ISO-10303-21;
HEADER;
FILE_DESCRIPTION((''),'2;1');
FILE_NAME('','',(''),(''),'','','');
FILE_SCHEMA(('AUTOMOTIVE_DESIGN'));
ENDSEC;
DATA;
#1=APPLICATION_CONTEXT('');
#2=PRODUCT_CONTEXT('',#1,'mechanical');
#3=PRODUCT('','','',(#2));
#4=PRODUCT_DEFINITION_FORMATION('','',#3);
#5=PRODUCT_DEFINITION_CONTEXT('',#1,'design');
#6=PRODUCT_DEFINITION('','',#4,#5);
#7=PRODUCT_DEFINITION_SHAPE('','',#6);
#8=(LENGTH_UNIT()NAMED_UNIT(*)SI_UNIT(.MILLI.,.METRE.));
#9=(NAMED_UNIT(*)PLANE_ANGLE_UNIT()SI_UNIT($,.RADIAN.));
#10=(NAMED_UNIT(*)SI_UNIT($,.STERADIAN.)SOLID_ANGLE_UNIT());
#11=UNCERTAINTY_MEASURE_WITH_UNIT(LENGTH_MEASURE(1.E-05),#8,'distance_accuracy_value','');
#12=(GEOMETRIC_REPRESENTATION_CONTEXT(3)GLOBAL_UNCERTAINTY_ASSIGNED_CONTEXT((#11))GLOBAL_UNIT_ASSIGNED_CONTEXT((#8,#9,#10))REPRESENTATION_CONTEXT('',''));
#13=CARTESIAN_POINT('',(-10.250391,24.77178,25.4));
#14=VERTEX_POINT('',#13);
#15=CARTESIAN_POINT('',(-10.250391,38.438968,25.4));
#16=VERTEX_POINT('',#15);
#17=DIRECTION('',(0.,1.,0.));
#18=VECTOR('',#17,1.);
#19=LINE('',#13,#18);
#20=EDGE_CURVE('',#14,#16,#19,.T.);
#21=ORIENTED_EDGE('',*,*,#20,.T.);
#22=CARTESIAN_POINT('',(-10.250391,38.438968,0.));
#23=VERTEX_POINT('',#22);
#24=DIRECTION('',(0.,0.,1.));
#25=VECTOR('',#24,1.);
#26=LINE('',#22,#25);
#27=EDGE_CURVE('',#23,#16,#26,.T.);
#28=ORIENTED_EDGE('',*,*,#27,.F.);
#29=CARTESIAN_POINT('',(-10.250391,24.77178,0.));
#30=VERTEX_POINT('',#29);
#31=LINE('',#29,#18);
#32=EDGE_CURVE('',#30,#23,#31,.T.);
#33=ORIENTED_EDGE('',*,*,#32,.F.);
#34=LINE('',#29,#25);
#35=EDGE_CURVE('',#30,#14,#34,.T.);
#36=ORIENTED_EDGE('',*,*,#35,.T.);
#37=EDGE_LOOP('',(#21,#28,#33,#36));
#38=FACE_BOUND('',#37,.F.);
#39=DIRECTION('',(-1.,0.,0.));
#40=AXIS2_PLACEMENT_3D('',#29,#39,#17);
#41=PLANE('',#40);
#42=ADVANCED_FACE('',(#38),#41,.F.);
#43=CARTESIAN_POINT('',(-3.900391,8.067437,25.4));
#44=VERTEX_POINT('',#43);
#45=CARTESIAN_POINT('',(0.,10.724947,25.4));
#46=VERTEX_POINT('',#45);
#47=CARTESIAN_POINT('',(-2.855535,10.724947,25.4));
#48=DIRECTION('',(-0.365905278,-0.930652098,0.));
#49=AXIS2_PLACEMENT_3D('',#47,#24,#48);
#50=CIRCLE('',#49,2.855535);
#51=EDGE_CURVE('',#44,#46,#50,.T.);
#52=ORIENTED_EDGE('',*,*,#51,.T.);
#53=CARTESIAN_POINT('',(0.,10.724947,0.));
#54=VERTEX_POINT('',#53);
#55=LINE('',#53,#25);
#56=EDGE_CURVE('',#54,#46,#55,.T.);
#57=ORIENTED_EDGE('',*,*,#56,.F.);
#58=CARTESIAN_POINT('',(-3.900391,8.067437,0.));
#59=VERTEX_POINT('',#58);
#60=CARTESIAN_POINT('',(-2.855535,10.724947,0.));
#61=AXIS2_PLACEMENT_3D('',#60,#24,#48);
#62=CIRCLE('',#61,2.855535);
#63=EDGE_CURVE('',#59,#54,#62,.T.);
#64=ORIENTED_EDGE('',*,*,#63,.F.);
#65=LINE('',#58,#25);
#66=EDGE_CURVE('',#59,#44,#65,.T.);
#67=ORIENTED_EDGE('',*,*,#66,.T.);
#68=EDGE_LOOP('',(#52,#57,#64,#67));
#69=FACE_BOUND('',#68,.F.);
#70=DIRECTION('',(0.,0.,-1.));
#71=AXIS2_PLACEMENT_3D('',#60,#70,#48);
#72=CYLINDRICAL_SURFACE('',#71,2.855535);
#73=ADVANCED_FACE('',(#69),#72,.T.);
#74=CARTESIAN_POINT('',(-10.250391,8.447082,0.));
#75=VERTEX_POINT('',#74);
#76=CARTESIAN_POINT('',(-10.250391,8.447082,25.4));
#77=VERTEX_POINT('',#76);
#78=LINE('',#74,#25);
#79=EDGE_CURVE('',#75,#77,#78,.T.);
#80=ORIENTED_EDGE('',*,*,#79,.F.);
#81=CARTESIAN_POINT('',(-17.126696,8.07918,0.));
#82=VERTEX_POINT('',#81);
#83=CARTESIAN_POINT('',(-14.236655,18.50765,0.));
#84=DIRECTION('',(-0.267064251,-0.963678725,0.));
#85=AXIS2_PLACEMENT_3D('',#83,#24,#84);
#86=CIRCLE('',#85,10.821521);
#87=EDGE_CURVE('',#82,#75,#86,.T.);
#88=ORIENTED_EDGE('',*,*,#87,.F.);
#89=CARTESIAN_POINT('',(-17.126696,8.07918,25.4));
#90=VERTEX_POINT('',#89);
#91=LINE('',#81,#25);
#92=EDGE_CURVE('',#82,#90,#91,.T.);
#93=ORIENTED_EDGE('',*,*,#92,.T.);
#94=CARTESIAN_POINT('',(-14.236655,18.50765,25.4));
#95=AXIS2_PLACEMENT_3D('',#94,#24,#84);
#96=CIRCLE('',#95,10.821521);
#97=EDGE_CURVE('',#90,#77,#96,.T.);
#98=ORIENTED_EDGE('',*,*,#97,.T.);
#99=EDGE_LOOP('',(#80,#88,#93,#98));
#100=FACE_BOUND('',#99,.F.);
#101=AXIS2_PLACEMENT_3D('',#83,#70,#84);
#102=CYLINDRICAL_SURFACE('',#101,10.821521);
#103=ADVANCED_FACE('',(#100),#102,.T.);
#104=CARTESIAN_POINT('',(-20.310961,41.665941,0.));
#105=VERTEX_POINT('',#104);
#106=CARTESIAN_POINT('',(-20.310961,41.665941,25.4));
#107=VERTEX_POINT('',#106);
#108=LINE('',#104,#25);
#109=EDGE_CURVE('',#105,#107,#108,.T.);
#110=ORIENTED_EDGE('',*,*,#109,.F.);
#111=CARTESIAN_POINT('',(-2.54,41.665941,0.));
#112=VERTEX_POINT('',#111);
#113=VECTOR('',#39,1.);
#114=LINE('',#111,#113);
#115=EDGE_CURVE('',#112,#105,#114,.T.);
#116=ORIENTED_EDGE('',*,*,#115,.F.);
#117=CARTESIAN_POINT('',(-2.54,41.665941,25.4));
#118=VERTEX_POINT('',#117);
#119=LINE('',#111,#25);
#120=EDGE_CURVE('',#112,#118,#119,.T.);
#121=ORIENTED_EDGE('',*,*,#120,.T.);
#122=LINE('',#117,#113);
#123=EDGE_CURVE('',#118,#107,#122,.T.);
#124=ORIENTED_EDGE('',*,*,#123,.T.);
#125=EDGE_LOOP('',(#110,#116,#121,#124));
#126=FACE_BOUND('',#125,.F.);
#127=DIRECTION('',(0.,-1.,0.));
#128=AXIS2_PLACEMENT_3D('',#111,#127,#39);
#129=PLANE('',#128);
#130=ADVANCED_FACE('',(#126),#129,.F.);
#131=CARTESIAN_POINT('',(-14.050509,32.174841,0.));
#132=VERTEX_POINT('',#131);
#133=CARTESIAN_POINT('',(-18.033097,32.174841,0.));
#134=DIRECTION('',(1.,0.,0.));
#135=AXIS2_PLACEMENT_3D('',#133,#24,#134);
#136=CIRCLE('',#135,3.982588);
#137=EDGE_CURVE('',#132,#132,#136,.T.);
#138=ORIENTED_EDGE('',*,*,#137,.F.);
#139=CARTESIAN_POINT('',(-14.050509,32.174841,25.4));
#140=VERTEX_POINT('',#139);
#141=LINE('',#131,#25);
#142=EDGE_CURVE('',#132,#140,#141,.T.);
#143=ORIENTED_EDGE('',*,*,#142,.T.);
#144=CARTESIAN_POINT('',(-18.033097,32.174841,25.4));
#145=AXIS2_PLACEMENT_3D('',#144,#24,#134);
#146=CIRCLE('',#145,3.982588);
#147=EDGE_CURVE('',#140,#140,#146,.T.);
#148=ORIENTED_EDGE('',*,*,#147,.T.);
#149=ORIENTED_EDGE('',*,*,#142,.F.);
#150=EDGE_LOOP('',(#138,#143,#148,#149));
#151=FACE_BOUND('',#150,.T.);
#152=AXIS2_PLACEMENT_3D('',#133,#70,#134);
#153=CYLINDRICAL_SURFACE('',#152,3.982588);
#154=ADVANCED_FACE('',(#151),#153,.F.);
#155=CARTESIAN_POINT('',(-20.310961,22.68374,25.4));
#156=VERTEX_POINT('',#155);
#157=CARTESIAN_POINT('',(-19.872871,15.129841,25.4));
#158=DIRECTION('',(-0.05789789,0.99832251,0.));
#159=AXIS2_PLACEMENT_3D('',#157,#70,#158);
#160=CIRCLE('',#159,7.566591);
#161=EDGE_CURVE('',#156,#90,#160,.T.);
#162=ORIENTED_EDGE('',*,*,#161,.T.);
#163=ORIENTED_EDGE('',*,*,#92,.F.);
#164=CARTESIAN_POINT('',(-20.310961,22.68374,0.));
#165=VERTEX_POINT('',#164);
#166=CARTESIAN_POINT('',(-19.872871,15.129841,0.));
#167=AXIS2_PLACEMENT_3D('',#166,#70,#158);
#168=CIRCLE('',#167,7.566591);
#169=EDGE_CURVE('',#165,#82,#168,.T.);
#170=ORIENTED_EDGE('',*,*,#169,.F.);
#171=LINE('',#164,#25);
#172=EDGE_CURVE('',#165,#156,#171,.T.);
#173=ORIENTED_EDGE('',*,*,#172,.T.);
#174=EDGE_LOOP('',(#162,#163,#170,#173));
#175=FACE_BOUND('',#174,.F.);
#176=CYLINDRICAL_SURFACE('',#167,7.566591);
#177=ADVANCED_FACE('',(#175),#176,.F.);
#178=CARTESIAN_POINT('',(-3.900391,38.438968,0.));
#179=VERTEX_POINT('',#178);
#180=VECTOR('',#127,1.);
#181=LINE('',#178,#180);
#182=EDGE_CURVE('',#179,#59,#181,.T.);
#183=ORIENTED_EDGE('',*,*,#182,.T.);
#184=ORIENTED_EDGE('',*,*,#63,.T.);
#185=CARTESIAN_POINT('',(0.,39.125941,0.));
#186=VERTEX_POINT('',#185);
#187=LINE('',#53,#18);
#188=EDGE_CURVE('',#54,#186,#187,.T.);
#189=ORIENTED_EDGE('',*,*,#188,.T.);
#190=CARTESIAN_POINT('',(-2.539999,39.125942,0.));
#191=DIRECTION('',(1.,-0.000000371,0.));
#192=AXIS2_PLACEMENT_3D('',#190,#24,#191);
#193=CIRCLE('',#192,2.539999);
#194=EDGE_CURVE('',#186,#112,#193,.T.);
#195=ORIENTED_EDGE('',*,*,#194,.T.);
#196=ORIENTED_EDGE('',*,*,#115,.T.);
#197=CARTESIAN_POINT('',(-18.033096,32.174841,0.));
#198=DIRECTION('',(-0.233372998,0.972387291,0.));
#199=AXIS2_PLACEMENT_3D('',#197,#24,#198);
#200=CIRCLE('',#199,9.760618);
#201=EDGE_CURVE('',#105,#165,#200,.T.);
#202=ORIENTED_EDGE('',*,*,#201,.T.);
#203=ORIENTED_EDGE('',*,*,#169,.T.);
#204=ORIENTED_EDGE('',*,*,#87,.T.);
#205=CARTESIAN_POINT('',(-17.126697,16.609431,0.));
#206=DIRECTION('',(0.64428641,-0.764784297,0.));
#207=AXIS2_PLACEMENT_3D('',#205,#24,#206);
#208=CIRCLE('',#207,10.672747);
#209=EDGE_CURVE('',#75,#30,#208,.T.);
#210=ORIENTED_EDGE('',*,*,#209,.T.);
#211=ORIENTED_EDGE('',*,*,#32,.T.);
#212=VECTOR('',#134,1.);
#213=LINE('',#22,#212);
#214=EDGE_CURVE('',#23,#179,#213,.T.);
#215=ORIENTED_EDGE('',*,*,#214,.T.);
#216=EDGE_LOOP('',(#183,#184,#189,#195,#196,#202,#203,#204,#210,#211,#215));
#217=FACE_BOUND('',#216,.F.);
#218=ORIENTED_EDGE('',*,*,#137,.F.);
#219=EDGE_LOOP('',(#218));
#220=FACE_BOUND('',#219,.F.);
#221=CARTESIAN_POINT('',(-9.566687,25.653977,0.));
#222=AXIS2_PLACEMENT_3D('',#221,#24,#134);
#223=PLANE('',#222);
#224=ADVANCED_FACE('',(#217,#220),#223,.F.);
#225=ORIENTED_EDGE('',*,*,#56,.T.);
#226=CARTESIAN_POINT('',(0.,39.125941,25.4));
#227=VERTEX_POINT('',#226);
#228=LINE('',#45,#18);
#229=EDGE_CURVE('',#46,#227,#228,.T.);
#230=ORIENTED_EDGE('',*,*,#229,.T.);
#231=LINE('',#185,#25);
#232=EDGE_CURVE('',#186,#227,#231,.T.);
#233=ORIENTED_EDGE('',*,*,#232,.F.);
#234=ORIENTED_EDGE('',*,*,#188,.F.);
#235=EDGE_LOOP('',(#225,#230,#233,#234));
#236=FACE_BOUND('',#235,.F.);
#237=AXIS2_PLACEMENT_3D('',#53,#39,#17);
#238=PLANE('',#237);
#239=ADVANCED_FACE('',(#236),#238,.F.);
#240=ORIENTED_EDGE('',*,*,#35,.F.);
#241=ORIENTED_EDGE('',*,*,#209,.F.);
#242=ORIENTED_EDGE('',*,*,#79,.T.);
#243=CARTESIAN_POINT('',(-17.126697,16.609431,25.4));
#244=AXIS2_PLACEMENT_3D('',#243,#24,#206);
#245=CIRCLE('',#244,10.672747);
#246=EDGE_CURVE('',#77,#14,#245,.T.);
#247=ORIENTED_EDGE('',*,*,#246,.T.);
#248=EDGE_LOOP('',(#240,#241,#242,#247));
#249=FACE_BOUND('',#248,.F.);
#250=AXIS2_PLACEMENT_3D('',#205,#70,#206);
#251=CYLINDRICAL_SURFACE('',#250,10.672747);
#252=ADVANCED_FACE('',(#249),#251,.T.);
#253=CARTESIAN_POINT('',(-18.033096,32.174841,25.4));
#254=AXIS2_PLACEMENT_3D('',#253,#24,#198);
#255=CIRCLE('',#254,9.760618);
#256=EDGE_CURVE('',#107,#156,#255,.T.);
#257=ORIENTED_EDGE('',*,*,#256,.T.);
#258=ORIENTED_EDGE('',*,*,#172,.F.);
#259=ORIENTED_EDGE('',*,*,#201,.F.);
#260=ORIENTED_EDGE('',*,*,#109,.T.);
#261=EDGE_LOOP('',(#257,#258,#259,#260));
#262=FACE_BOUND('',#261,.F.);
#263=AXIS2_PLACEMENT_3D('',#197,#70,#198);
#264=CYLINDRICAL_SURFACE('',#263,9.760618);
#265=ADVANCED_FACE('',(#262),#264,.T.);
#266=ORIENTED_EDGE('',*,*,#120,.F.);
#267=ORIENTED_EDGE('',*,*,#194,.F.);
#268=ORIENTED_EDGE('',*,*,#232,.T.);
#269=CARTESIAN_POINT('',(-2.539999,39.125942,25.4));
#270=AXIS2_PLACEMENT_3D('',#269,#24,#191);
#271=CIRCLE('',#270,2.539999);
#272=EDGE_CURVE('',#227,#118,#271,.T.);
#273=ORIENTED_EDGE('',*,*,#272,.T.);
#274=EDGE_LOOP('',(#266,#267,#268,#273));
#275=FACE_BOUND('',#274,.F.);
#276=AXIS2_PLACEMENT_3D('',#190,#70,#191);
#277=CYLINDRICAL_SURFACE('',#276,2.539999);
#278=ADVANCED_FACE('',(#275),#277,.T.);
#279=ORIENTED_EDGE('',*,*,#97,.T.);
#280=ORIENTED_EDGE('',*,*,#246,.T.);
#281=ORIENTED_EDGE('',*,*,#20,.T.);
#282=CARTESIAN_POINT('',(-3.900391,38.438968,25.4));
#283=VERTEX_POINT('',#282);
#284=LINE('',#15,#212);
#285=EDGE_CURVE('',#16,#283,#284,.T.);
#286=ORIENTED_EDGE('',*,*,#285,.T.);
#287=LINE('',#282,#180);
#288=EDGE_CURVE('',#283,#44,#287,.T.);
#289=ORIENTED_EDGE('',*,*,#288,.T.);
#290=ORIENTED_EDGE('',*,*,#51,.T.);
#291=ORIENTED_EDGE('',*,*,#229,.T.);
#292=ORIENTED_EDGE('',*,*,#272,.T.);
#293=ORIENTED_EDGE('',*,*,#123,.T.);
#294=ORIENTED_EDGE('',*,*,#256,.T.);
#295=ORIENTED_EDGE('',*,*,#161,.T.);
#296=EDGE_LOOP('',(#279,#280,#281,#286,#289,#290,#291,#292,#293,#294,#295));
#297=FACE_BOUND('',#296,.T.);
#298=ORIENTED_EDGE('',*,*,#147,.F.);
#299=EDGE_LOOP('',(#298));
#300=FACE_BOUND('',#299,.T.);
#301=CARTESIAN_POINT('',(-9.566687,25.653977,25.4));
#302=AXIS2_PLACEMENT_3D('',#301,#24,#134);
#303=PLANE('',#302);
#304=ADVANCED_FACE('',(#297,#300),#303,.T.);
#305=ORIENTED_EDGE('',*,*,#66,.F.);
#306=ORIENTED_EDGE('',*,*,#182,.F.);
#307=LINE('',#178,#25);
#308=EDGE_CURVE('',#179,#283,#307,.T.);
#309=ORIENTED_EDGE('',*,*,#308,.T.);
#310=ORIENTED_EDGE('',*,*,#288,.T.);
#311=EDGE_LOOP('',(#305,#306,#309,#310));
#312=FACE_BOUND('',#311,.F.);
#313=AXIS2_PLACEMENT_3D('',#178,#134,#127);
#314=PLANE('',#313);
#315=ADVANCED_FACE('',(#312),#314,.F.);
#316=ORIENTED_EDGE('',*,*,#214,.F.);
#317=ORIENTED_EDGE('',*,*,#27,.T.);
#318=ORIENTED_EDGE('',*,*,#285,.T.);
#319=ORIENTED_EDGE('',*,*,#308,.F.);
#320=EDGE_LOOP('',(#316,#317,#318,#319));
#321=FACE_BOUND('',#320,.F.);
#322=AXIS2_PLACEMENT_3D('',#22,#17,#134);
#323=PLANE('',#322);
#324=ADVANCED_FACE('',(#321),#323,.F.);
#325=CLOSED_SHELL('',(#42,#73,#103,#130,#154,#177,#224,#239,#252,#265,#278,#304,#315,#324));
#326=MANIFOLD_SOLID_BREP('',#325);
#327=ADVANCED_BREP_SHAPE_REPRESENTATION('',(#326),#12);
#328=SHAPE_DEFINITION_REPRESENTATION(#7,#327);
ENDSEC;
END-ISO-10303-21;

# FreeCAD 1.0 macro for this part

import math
import FreeCAD as App
import Part
import Sketcher

V = App.Vector
Q = App.Units.Quantity

doc = App.newDocument("Part")
body = doc.addObject("PartDesign::Body", "Body")

# Sketch on XY plane
sketch1 = body.newObject("Sketcher::SketchObject", "Sketch")
sketch1.AttachmentSupport = (doc.getObject("XY_Plane"), [""])
sketch1.MapMode = "FlatFace"
sketch1.addGeometry([
    Part.ArcOfCircle(Part.Circle(V(-17.126697, 16.609431, 0), V(0, 0, 1), 10.672747), math.radians(-49.887806), math.radians(49.887806)),  # 0
    Part.LineSegment(V(-10.250391, 24.77178, 0), V(-10.250391, 38.438968, 0)),  # 1
    Part.LineSegment(V(-10.250391, 38.438968, 0), V(-3.900391, 38.438968, 0)),  # 2
    Part.LineSegment(V(-3.900391, 38.438968, 0), V(-3.900391, 8.067437, 0)),  # 3
    Part.ArcOfCircle(Part.Circle(V(-2.855535, 10.724947, 0), V(0, 0, 1), 2.855535), math.radians(-111.463306), math.radians(-0.000002)),  # 4
    Part.LineSegment(V(0, 10.724947, 0), V(0, 39.125941, 0)),  # 5
    Part.ArcOfCircle(Part.Circle(V(-2.539999, 39.125942, 0), V(0, 0, 1), 2.539999), math.radians(-0.000021), math.radians(90.000021)),  # 6
    Part.LineSegment(V(-2.54, 41.665941, 0), V(-20.310961, 41.665941, 0)),  # 7
    Part.ArcOfCircle(Part.Circle(V(-18.033096, 32.174841, 0), V(0, 0, 1), 9.760618), math.radians(103.495736), math.radians(256.504264)),  # 8
    Part.ArcOfCircle(Part.Circle(V(-19.872871, 15.129841, 0), V(0, 0, 1), 7.566591), math.radians(-68.719491), math.radians(93.319161)),  # 9
    Part.ArcOfCircle(Part.Circle(V(-14.236655, 18.50765, 0), V(0, 0, 1), 10.821521), math.radians(-105.489647), math.radians(-68.385217)),  # 10
    Part.Circle(V(-18.033097, 32.174841, 0), V(0, 0, 1), 3.982588),  # 11
], False)
sketch1.addConstraint([
    Sketcher.Constraint("Coincident", 0, 2, 1, 1),
    Sketcher.Constraint("Coincident", 1, 2, 2, 1),
    Sketcher.Constraint("Coincident", 2, 2, 3, 1),
    Sketcher.Constraint("Coincident", 3, 2, 4, 1),
    Sketcher.Constraint("Tangent", 4, 2, 5, 1),
    Sketcher.Constraint("Tangent", 5, 2, 6, 1),
    Sketcher.Constraint("Tangent", 6, 2, 7, 1),
    Sketcher.Constraint("Coincident", 7, 2, 8, 1),
    Sketcher.Constraint("Coincident", 8, 2, 9, 2),
    Sketcher.Constraint("Coincident", 9, 1, 10, 1),
    Sketcher.Constraint("Coincident", 10, 2, 0, 1),
    Sketcher.Constraint("Vertical", 1),
    Sketcher.Constraint("Horizontal", 2),
    Sketcher.Constraint("Vertical", 3),
    Sketcher.Constraint("Vertical", 5),
    Sketcher.Constraint("Horizontal", 7),
    Sketcher.Constraint("Coincident", 11, 3, 8, 3),
    Sketcher.Constraint("PointOnObject", 4, 2, -2),
    Sketcher.Constraint("Vertical", 7, 2, 8, 2),
    Sketcher.Constraint("Vertical", 0, 3, 9, 1),
    Sketcher.Constraint("Vertical", 1, 2, 10, 2),
    Sketcher.Constraint("Radius", 6, Q("0.1 in")),
    Sketcher.Constraint("DistanceX", 2, 1, 2, 2, Q("0.25 in")),
    Sketcher.Constraint("Radius", 9, 7.566591),
    Sketcher.Constraint("Radius", 10, 10.821521),
    Sketcher.Constraint("Diameter", 11, 7.965176),
    Sketcher.Constraint("Radius", 0, 10.672747),
    Sketcher.Constraint("Radius", 4, 2.855535),
    Sketcher.Constraint("Radius", 8, 9.760618),
    Sketcher.Constraint("DistanceX", 7, 2, 7, 1, 17.770961),
    Sketcher.Constraint("DistanceY", 1, 1, 1, 2, 13.667188),
    Sketcher.Constraint("DistanceY", 3, 2, 3, 1, 30.371531),
    Sketcher.Constraint("DistanceX", 8, 3, 0, 3, 0.9064),
    Sketcher.Constraint("DistanceY", 8, 3, 6, 3, 6.951101),
    Sketcher.Constraint("DistanceY", 9, 3, 8, 3, 17.044999),
    Sketcher.Constraint("DistanceY", 9, 1, 10, 2, 0.367902),
    Sketcher.Constraint("DistanceY", 5, 1, 5, 2, 28.400994),
    Sketcher.Constraint("DistanceY", -1, 1, 0, 3, 16.609431),
])
pad1 = body.newObject("PartDesign::Pad", "Pad")
pad1.Profile = sketch1
pad1.Length = Q("1 in")

doc.recompute()
